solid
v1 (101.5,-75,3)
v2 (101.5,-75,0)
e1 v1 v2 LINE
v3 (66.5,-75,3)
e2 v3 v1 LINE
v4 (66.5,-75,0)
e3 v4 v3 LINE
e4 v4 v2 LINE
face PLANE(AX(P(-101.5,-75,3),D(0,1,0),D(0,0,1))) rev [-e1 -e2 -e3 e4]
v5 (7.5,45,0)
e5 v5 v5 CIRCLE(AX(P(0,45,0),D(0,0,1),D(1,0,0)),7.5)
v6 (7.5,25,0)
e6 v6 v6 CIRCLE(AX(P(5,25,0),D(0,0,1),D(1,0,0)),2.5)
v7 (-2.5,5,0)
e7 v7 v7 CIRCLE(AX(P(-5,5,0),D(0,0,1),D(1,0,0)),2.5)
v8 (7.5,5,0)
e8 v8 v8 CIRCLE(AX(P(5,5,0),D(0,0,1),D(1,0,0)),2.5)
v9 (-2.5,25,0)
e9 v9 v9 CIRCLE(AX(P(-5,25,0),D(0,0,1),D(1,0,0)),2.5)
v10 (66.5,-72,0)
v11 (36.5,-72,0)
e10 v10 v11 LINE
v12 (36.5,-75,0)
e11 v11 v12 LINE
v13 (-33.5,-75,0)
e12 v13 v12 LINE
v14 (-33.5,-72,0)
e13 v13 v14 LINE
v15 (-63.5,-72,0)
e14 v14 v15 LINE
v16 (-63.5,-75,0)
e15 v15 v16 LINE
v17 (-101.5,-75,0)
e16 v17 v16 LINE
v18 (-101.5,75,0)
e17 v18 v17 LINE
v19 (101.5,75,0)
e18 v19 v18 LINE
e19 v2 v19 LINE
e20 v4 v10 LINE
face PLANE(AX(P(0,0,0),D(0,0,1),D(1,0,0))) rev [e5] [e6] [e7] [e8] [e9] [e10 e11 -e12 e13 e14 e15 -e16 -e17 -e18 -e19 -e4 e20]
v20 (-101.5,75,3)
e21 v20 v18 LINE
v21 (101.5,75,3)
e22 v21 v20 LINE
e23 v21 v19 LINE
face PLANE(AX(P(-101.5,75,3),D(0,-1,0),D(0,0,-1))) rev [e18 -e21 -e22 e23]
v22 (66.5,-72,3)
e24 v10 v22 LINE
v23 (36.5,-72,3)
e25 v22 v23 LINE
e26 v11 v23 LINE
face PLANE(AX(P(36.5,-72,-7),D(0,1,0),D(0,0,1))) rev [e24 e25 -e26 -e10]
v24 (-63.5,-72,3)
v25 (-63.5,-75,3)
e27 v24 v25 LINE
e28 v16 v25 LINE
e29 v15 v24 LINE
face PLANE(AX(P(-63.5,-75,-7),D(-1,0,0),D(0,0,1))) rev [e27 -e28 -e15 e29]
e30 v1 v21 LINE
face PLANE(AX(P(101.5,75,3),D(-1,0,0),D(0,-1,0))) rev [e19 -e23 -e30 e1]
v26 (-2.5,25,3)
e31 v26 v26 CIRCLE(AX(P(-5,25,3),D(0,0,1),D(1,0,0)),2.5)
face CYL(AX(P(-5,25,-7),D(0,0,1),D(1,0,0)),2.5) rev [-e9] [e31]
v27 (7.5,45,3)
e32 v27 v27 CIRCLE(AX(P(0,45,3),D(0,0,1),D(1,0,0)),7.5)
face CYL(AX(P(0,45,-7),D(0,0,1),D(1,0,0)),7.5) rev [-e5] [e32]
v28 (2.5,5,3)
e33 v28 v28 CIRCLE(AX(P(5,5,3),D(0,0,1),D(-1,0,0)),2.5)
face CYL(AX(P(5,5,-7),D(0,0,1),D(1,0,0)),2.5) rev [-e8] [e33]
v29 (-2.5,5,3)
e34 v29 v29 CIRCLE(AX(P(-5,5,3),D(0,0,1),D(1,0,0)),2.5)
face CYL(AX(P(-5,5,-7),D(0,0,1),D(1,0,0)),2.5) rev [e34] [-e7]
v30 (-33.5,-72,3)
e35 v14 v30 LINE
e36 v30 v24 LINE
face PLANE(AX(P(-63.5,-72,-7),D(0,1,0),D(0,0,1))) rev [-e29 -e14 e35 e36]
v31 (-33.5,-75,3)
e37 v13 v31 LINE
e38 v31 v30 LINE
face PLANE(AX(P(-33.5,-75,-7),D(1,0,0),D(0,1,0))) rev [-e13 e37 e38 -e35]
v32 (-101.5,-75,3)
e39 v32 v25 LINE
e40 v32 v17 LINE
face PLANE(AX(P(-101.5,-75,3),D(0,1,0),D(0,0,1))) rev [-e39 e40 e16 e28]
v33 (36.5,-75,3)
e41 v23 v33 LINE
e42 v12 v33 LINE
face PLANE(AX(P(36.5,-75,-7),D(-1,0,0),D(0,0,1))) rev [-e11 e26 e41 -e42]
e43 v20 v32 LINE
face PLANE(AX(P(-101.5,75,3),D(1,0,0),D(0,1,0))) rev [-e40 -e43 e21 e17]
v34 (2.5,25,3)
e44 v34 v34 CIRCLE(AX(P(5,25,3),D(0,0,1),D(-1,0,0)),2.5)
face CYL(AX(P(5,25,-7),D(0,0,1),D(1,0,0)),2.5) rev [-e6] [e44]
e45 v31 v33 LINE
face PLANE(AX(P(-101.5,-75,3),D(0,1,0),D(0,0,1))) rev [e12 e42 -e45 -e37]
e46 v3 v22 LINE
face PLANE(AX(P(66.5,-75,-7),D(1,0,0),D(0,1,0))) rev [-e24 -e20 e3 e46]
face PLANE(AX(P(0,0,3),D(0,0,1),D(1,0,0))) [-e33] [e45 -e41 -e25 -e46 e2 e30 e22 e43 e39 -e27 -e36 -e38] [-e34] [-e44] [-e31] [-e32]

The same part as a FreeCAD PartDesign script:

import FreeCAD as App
import Part
import Sketcher
from FreeCAD import Vector
Q = App.Units.Quantity

doc = App.newDocument("Part")
body = doc.addObject("PartDesign::Body", "Body")

sketch1 = body.newObject("Sketcher::SketchObject", "Sketch")
sketch1.AttachmentSupport = (doc.getObject("XY_Plane"), [""])
sketch1.MapMode = "FlatFace"
sketch1.addGeometry(Part.LineSegment(Vector(-102, 75, 0), Vector(-102, -75, 0)), False)
sketch1.addGeometry(Part.LineSegment(Vector(-102, -75, 0), Vector(102, -75, 0)), False)
sketch1.addGeometry(Part.LineSegment(Vector(102, -75, 0), Vector(102, 75, 0)), False)
sketch1.addGeometry(Part.LineSegment(Vector(102, 75, 0), Vector(-102, 75, 0)), False)
sketch1.addConstraint(Sketcher.Constraint("Coincident", 0, 2, 1, 1))
sketch1.addConstraint(Sketcher.Constraint("Coincident", 1, 2, 2, 1))
sketch1.addConstraint(Sketcher.Constraint("Coincident", 2, 2, 3, 1))
sketch1.addConstraint(Sketcher.Constraint("Coincident", 3, 2, 0, 1))
sketch1.addConstraint(Sketcher.Constraint("Vertical", 0))
sketch1.addConstraint(Sketcher.Constraint("Horizontal", 1))
sketch1.addConstraint(Sketcher.Constraint("Vertical", 2))
sketch1.addConstraint(Sketcher.Constraint("Horizontal", 3))
sketch1.addConstraint(Sketcher.Constraint("Symmetric", 0, 2, 2, 2, -1, 1))
sketch1.addConstraint(Sketcher.Constraint("DistanceX", 1, 1, 1, 2, Q("203 mm")))
sketch1.addConstraint(Sketcher.Constraint("DistanceY", 0, 2, 0, 1, Q("150 mm")))
pad1 = body.newObject("PartDesign::Pad", "Pad")
pad1.Profile = sketch1
pad1.Length = 3

sketch2 = body.newObject("Sketcher::SketchObject", "Sketch001")
sketch2.AttachmentSupport = (doc.getObject("XY_Plane"), [""])
sketch2.MapMode = "FlatFace"
sketch2.AttachmentOffset = App.Placement(Vector(0, 0, 3), App.Rotation())
sketch2.addGeometry(Part.Circle(Vector(0, 45, 0), Vector(0, 0, 1), 7.5), False)
sketch2.addGeometry(Part.Circle(Vector(-5, 25, 0), Vector(0, 0, 1), 2.5), False)
sketch2.addGeometry(Part.Circle(Vector(-5, 5, 0), Vector(0, 0, 1), 2.5), False)
sketch2.addGeometry(Part.Circle(Vector(5, 5, 0), Vector(0, 0, 1), 2.5), False)
sketch2.addGeometry(Part.Circle(Vector(5, 25, 0), Vector(0, 0, 1), 2.5), False)
sketch2.addConstraint(Sketcher.Constraint("Equal", 1, 2))
sketch2.addConstraint(Sketcher.Constraint("Equal", 2, 3))
sketch2.addConstraint(Sketcher.Constraint("Equal", 3, 4))
sketch2.addConstraint(Sketcher.Constraint("Symmetric", 2, 3, 3, 3, -2))
sketch2.addConstraint(Sketcher.Constraint("Symmetric", 1, 3, 4, 3, -2))
sketch2.addConstraint(Sketcher.Constraint("PointOnObject", 0, 3, -2))
sketch2.addConstraint(Sketcher.Constraint("Vertical", 1, 3, 2, 3))
sketch2.addConstraint(Sketcher.Constraint("Diameter", 0, Q("15 mm")))
sketch2.addConstraint(Sketcher.Constraint("Diameter", 1, Q("5 mm")))
sketch2.addConstraint(Sketcher.Constraint("DistanceY", -1, 1, 0, 3, Q("45 mm")))
sketch2.addConstraint(Sketcher.Constraint("DistanceX", 1, 3, -1, 1, Q("5 mm")))
sketch2.addConstraint(Sketcher.Constraint("DistanceY", -1, 1, 1, 3, Q("25 mm")))
sketch2.addConstraint(Sketcher.Constraint("DistanceY", -1, 1, 2, 3, Q("5 mm")))
pocket1 = body.newObject("PartDesign::Pocket", "Pocket")
pocket1.Profile = sketch2
pocket1.Length = 10

sketch3 = body.newObject("Sketcher::SketchObject", "Sketch002")
sketch3.AttachmentSupport = (doc.getObject("XY_Plane"), [""])
sketch3.MapMode = "FlatFace"
sketch3.AttachmentOffset = App.Placement(Vector(0, 0, 3), App.Rotation())
sketch3.addGeometry(Part.LineSegment(Vector(-63.5, -72, 0), Vector(-63.5, -75, 0)), False)
sketch3.addGeometry(Part.LineSegment(Vector(-63.5, -75, 0), Vector(-33.5, -75, 0)), False)
sketch3.addGeometry(Part.LineSegment(Vector(-33.5, -75, 0), Vector(-33.5, -72, 0)), False)
sketch3.addGeometry(Part.LineSegment(Vector(-33.5, -72, 0), Vector(-63.5, -72, 0)), False)
sketch3.addGeometry(Part.LineSegment(Vector(36.5, -72, 0), Vector(36.5, -75, 0)), False)
sketch3.addGeometry(Part.LineSegment(Vector(36.5, -75, 0), Vector(66.5, -75, 0)), False)
sketch3.addGeometry(Part.LineSegment(Vector(66.5, -75, 0), Vector(66.5, -72, 0)), False)
sketch3.addGeometry(Part.LineSegment(Vector(66.5, -72, 0), Vector(36.5, -72, 0)), False)
sketch3.addConstraint(Sketcher.Constraint("Coincident", 0, 2, 1, 1))
sketch3.addConstraint(Sketcher.Constraint("Coincident", 1, 2, 2, 1))
sketch3.addConstraint(Sketcher.Constraint("Coincident", 2, 2, 3, 1))
sketch3.addConstraint(Sketcher.Constraint("Coincident", 3, 2, 0, 1))
sketch3.addConstraint(Sketcher.Constraint("Coincident", 4, 2, 5, 1))
sketch3.addConstraint(Sketcher.Constraint("Coincident", 5, 2, 6, 1))
sketch3.addConstraint(Sketcher.Constraint("Coincident", 6, 2, 7, 1))
sketch3.addConstraint(Sketcher.Constraint("Coincident", 7, 2, 4, 1))
sketch3.addConstraint(Sketcher.Constraint("Vertical", 0))
sketch3.addConstraint(Sketcher.Constraint("Horizontal", 1))
sketch3.addConstraint(Sketcher.Constraint("Vertical", 2))
sketch3.addConstraint(Sketcher.Constraint("Horizontal", 3))
sketch3.addConstraint(Sketcher.Constraint("Vertical", 4))
sketch3.addConstraint(Sketcher.Constraint("Horizontal", 5))
sketch3.addConstraint(Sketcher.Constraint("Vertical", 6))
sketch3.addConstraint(Sketcher.Constraint("Horizontal", 7))
sketch3.addConstraint(Sketcher.Constraint("Horizontal", 1, 2, 4, 2))
sketch3.addConstraint(Sketcher.Constraint("Horizontal", 3, 2, 6, 2))
sketch3.addConstraint(Sketcher.Constraint("Equal", 3, 5))
sketch3.addConstraint(Sketcher.Constraint("DistanceX", 1, 1, 1, 2, Q("30 mm")))
sketch3.addConstraint(Sketcher.Constraint("DistanceY", 0, 2, 0, 1, Q("3 mm")))
sketch3.addConstraint(Sketcher.Constraint("DistanceY", 0, 2, -1, 1, Q("75 mm")))
sketch3.addConstraint(Sketcher.Constraint("DistanceX", 1, 2, 4, 2, Q("70 mm")))
sketch3.addConstraint(Sketcher.Constraint("DistanceX", 0, 2, -1, 1, Q("63.5 mm")))
pocket2 = body.newObject("PartDesign::Pocket", "Pocket001")
pocket2.Profile = sketch3
pocket2.Length = 10

doc.recompute()
